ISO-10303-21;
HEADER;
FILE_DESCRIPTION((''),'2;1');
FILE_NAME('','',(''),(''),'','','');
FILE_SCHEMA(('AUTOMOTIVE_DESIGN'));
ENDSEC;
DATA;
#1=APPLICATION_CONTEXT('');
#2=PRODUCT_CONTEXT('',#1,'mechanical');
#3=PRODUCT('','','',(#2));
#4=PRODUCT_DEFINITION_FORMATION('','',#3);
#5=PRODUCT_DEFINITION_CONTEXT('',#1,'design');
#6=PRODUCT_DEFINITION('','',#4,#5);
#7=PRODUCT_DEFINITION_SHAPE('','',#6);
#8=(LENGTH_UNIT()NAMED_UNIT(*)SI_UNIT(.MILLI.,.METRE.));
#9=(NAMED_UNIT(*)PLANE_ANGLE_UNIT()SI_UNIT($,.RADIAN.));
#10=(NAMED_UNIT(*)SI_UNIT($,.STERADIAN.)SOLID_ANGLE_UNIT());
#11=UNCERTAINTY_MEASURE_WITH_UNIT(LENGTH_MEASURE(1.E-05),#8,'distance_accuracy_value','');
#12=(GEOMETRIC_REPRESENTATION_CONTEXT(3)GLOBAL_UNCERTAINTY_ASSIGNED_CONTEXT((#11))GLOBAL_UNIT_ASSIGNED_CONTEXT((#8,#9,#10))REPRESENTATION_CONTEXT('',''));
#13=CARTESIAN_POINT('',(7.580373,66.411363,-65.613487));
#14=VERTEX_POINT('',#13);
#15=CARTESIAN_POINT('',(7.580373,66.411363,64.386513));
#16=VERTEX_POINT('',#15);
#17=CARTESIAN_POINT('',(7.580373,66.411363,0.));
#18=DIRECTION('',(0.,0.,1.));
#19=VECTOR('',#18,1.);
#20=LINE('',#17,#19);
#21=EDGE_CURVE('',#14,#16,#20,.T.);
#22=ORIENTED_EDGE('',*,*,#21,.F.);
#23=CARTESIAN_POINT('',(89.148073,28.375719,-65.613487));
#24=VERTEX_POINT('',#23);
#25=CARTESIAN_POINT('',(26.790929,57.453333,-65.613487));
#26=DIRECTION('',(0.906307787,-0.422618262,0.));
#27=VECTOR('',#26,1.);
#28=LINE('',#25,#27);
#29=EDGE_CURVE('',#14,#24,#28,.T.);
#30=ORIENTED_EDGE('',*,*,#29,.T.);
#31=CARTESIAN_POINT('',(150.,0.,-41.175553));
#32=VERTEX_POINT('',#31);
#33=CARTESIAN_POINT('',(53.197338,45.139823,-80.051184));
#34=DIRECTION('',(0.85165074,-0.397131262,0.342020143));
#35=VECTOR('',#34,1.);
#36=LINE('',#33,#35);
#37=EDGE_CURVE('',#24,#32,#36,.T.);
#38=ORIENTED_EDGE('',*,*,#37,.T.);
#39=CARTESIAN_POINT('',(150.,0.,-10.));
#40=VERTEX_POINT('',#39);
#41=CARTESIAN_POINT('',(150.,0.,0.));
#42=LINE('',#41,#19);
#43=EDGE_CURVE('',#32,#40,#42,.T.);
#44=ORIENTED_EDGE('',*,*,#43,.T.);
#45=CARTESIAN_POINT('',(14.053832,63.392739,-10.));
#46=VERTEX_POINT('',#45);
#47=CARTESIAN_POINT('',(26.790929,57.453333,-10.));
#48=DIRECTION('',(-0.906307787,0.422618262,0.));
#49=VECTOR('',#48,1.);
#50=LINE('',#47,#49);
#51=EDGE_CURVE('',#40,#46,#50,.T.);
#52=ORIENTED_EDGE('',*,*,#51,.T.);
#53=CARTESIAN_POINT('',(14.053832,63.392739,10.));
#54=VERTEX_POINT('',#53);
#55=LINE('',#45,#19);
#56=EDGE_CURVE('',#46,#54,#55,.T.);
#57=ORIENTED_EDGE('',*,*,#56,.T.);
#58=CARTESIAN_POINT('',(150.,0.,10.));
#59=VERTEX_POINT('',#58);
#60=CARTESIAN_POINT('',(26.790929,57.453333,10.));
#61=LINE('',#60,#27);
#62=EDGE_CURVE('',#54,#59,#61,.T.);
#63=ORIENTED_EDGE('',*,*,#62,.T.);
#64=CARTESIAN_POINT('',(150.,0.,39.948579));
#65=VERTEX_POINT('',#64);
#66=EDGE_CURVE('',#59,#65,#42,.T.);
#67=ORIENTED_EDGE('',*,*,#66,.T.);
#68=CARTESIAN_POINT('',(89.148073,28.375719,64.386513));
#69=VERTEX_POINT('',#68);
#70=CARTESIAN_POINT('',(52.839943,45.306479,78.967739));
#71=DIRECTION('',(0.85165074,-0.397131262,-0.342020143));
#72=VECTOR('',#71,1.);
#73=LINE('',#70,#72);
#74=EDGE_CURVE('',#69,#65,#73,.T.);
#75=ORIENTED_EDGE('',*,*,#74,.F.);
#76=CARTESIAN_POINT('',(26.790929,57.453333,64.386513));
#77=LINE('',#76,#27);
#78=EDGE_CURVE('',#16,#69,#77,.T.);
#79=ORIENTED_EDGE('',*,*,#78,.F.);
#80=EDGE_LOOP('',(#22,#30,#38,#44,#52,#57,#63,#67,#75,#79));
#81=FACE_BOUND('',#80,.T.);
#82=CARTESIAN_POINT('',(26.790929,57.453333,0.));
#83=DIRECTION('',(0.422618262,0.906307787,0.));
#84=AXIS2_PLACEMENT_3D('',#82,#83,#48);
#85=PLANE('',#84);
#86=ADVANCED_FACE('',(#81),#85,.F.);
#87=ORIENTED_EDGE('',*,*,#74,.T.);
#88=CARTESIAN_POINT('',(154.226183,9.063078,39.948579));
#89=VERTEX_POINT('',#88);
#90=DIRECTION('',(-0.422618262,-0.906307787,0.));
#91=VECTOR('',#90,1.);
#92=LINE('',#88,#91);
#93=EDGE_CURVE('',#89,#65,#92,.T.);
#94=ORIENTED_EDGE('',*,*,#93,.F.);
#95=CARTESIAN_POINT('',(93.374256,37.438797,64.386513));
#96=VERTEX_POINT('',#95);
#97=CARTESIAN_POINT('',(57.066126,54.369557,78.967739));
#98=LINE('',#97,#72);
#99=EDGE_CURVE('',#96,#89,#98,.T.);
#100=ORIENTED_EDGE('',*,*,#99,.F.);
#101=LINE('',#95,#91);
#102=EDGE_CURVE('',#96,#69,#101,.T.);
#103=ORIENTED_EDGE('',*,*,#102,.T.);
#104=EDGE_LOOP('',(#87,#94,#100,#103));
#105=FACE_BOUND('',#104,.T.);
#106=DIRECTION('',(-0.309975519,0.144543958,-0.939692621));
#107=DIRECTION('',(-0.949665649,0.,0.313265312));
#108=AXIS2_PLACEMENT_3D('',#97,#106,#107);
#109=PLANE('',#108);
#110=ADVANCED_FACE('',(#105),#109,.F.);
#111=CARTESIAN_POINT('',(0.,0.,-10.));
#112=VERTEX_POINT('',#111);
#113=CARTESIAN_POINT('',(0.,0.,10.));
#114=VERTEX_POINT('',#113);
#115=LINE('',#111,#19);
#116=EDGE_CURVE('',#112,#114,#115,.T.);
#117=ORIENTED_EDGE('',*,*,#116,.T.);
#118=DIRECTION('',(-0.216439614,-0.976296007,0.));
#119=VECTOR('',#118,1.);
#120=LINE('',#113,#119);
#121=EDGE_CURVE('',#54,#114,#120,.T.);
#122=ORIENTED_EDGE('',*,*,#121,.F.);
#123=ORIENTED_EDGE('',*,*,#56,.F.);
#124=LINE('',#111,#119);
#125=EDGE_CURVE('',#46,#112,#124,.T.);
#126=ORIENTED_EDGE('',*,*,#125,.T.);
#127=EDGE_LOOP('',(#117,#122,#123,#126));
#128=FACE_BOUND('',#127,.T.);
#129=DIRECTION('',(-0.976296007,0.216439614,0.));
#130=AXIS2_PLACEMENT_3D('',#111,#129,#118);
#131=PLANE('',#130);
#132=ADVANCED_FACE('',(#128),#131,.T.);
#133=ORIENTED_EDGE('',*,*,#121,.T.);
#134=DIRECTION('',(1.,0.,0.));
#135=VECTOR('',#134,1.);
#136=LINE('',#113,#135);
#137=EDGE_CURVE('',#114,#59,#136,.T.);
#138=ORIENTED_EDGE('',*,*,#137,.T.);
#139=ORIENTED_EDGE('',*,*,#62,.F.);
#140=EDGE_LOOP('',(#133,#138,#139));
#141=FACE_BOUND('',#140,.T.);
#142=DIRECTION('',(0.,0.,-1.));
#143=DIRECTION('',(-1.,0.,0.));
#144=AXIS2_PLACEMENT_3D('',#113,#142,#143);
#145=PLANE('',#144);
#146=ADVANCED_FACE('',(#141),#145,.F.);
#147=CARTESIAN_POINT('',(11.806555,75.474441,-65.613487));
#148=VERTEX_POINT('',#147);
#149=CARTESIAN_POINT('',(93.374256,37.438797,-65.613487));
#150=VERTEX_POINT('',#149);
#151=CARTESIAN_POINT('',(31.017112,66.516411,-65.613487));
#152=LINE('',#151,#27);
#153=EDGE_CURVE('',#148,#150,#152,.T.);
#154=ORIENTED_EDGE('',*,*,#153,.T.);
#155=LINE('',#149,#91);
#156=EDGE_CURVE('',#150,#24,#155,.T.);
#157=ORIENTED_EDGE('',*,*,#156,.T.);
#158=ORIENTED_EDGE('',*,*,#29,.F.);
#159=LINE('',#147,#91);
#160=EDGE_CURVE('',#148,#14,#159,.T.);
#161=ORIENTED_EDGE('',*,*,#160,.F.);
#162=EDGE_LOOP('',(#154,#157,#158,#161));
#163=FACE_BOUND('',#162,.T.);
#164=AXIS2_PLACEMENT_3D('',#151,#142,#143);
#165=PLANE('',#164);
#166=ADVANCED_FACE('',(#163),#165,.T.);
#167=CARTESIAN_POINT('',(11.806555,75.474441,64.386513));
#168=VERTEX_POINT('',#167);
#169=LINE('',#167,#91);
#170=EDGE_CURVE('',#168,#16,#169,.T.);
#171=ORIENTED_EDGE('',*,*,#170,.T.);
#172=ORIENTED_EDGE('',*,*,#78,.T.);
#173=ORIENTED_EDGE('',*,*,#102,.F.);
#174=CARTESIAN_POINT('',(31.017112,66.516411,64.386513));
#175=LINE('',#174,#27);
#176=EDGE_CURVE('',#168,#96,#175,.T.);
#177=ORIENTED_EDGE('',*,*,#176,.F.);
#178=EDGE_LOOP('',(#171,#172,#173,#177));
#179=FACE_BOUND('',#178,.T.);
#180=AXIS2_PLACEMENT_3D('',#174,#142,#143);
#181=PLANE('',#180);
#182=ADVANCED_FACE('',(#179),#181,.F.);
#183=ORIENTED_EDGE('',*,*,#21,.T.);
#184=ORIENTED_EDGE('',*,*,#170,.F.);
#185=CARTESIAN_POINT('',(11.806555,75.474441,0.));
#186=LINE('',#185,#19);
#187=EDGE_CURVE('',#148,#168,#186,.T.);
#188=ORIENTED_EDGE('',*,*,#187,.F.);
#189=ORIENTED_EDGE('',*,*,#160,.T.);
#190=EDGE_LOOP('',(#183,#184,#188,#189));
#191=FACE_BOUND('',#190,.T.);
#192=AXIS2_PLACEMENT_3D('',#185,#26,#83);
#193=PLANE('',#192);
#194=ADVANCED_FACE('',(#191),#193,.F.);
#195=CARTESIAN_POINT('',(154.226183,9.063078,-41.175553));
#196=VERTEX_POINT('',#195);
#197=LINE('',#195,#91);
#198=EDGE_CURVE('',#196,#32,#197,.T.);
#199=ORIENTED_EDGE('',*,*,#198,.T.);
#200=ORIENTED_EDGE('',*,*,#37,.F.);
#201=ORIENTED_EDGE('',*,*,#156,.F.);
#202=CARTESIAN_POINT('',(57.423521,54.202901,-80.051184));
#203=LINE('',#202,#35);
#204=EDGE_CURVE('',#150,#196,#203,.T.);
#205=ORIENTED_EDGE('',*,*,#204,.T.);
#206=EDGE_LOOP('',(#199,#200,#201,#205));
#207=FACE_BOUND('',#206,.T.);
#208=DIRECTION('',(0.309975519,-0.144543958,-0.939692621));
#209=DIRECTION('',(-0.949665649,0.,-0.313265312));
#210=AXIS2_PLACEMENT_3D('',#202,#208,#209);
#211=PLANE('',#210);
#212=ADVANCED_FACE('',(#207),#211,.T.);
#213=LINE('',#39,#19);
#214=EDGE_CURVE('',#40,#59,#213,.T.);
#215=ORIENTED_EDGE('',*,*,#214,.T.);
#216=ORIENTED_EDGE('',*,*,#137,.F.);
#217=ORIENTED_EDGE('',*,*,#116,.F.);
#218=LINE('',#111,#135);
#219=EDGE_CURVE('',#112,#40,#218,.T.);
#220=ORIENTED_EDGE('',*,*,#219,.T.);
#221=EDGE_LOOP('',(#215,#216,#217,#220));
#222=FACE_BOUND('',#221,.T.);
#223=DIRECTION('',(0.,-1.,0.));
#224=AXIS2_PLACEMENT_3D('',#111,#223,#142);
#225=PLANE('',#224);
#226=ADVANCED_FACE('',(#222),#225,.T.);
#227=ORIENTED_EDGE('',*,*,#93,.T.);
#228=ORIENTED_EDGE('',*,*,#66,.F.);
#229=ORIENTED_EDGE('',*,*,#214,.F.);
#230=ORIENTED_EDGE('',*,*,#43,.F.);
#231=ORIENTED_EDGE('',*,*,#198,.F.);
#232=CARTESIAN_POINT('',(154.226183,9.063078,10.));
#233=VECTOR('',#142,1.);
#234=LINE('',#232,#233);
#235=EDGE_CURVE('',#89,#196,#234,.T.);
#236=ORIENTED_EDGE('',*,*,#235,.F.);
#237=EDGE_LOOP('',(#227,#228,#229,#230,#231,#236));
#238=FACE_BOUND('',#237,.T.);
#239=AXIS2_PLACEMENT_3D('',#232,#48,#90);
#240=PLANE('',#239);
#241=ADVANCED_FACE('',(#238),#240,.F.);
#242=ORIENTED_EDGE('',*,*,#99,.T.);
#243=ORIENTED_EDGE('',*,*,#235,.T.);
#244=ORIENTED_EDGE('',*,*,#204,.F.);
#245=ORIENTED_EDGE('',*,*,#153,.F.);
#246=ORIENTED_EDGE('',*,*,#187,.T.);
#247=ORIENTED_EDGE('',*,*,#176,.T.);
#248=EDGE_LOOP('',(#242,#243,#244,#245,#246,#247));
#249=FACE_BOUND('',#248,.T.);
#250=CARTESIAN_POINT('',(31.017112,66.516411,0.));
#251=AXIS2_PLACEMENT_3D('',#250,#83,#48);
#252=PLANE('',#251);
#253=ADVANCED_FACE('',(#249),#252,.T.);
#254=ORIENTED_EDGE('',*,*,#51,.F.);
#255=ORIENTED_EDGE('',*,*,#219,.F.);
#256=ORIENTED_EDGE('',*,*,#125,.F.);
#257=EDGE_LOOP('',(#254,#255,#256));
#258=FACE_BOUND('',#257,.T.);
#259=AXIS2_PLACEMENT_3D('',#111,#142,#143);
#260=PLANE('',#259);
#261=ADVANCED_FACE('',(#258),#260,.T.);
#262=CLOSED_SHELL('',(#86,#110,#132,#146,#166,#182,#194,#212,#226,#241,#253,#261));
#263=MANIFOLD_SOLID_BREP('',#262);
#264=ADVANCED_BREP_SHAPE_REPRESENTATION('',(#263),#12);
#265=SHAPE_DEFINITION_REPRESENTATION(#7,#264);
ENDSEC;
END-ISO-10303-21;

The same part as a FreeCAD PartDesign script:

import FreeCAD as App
import Part
import Sketcher
Q = App.Units.Quantity


def add_polygon(sketch, points):
    """Adds a closed chain of lines whose ends are joined by coincident constraints."""
    first, n = sketch.GeometryCount, len(points)
    for a, b in zip(points, points[1:] + points[:1]):
        sketch.addGeometry(Part.LineSegment(App.Vector(*a, 0), App.Vector(*b, 0)), False)
    for i in range(n):
        sketch.addConstraint(Sketcher.Constraint("Coincident", first + i, 2, first + (i + 1) % n, 1))

doc = App.newDocument("Part")
body = doc.addObject("PartDesign::Body", "Body")

# Sketch on XY plane
sketch1 = doc.addObject("Sketcher::SketchObject", "Sketch")
body.addObject(sketch1)
sketch1.AttachmentSupport = (doc.XY_Plane, [""])
sketch1.MapMode = "FlatFace"
add_polygon(sketch1, [(0, 0), (150, 0), (14, 63)])  # lines 0-2
sketch1.addConstraint([
    Sketcher.Constraint("Horizontal", 0),
    Sketcher.Constraint("Coincident", 2, 2, -1, 1),
    Sketcher.Constraint("DistanceX", 0, 1, 0, 2, Q("150 mm")),
    Sketcher.Constraint("Angle", 1, Q("155 deg")),
    Sketcher.Constraint("Distance", 1, Q("150 mm")),
])
pad1 = doc.addObject("PartDesign::Pad", "Pad")
body.addObject(pad1)
pad1.Profile = sketch1
pad1.Type = "TwoLengths"
pad1.Length = 10
pad1.Length2 = 10
body2 = doc.addObject("PartDesign::Body", "Body001")

# Sketch on an angled plane
sketch2 = doc.addObject("Sketcher::SketchObject", "Sketch001")
body2.addObject(sketch2)
sketch2.Placement = App.Placement(App.Vector(26.790929, 57.453333, 0), App.Rotation(App.Vector(0.906307787, -0.422618262, 0), App.Vector(0, 0, -1), App.Vector(0.422618262, 0.906307787, 0), "ZXY"))
add_polygon(sketch2, [(69, 66), (-21, 66), (-21, -64), (69, -64), (136, -40), (136, -10), (-14, -10), (-14, 10), (136, 10), (136, 41)])  # lines 0-9
sketch2.addConstraint([
    Sketcher.Constraint("Horizontal", 0),
    Sketcher.Constraint("Vertical", 1),
    Sketcher.Constraint("Horizontal", 2),
    Sketcher.Constraint("Vertical", 4),
    Sketcher.Constraint("Horizontal", 5),
    Sketcher.Constraint("Vertical", 6),
    Sketcher.Constraint("Horizontal", 7),
    Sketcher.Constraint("Vertical", 8),
    Sketcher.Constraint("Symmetric", 4, 2, 7, 2, -1),
    Sketcher.Constraint("Vertical", 2, 2, 9, 2),
    Sketcher.Constraint("Equal", 3, 9),
    Sketcher.Constraint("DistanceX", 0, 2, 0, 1, Q("90 mm")),
    Sketcher.Constraint("DistanceX", 5, 2, 5, 1, Q("150 mm")),
    Sketcher.Constraint("DistanceY", 1, 2, 1, 1, Q("130 mm")),
    Sketcher.Constraint("DistanceY", 6, 1, 6, 2, Q("20 mm")),
    Sketcher.Constraint("Angle", 3, Q("20 deg")),
    Sketcher.Constraint("DistanceY", 4, 1, 4, 2, Q("29.948579 mm")),
    Sketcher.Constraint("Distance", 3, Q("71.451739 mm")),
    Sketcher.Constraint("DistanceX", -1, 1, 3, 2, Q("135.946168 mm")),
])
pad2 = doc.addObject("PartDesign::Pad", "Pad001")
body2.addObject(pad2)
pad2.Profile = sketch2
pad2.Length = 10
body.AllowCompound = True
doc.recompute()

boolean = doc.addObject("PartDesign::Boolean", "Boolean")
body.addObject(boolean)
boolean.Type = "Fuse"
boolean.addObjects([body2])

# Sketch on an angled plane
sketch3 = doc.addObject("Sketcher::SketchObject", "Sketch002")
body.addObject(sketch3)
sketch3.Placement = App.Placement(App.Vector(26.790929, 57.453333, 0), App.Rotation(App.Vector(0.906307787, -0.422618262, 0), App.Vector(0, 0, -1), App.Vector(0.422618262, 0.906307787, 0), "ZXY"))
add_polygon(sketch3, [(-14, 10), (-14, -10), (136, -10), (136, 10)])  # lines 0-3
sketch3.addConstraint([
    Sketcher.Constraint("Vertical", 0),
    Sketcher.Constraint("Horizontal", 1),
    Sketcher.Constraint("Vertical", 2),
    Sketcher.Constraint("Horizontal", 3),
    Sketcher.Constraint("DistanceX", 1, 1, 1, 2, Q("150 mm")),
    Sketcher.Constraint("DistanceY", 0, 2, 0, 1, Q("20 mm")),
    Sketcher.Constraint("DistanceY", 0, 2, -1, 1, Q("10 mm")),
    Sketcher.Constraint("DistanceX", 0, 2, -1, 1, Q("14.053832 mm")),
])
pad3 = doc.addObject("PartDesign::Pad", "Pad002")
body.addObject(pad3)
pad3.Profile = sketch3
pad3.Length = 10

doc.recompute()
